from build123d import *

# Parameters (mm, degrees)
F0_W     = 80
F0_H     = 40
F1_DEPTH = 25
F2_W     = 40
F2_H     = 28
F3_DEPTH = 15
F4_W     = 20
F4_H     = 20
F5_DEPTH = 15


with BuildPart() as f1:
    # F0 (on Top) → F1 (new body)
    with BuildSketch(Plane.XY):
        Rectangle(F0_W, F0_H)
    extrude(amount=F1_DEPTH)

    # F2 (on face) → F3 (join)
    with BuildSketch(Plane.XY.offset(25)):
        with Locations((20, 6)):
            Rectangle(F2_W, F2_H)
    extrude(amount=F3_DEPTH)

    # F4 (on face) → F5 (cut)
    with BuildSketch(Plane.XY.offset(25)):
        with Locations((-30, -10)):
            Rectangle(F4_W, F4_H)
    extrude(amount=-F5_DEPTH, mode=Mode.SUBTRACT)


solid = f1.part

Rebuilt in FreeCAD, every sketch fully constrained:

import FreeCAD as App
import Part
import Sketcher

doc = App.newDocument("Part")
body = doc.addObject("PartDesign::Body", "Body")

# Sketch on XY plane
sketch1 = body.newObject("Sketcher::SketchObject", "Sketch")
sketch1.AttachmentSupport = (doc.getObject("XY_Plane"), [""])
sketch1.MapMode = "FlatFace"
sketch1.addGeometry(Part.LineSegment(App.Vector(-40, 20, 0), App.Vector(-40, -20, 0)), False)
sketch1.addGeometry(Part.LineSegment(App.Vector(-40, -20, 0), App.Vector(40, -20, 0)), False)
sketch1.addGeometry(Part.LineSegment(App.Vector(40, -20, 0), App.Vector(40, 20, 0)), False)
sketch1.addGeometry(Part.LineSegment(App.Vector(40, 20, 0), App.Vector(-40, 20, 0)), False)
sketch1.addConstraint(Sketcher.Constraint("Coincident", 0, 2, 1, 1))
sketch1.addConstraint(Sketcher.Constraint("Coincident", 1, 2, 2, 1))
sketch1.addConstraint(Sketcher.Constraint("Coincident", 2, 2, 3, 1))
sketch1.addConstraint(Sketcher.Constraint("Coincident", 3, 2, 0, 1))
sketch1.addConstraint(Sketcher.Constraint("Vertical", 0))
sketch1.addConstraint(Sketcher.Constraint("Horizontal", 1))
sketch1.addConstraint(Sketcher.Constraint("Vertical", 2))
sketch1.addConstraint(Sketcher.Constraint("Horizontal", 3))
sketch1.addConstraint(Sketcher.Constraint("Symmetric", 0, 2, 2, 2, -1, 1))
sketch1.addConstraint(Sketcher.Constraint("DistanceX", 1, 1, 1, 2, 80.0))
sketch1.addConstraint(Sketcher.Constraint("DistanceY", 0, 2, 0, 1, 40.0))
pad1 = body.newObject("PartDesign::Pad", "Pad")
pad1.Profile = sketch1
pad1.Length = 25

# Sketch on XY plane
sketch2 = body.newObject("Sketcher::SketchObject", "Sketch001")
sketch2.AttachmentSupport = (doc.getObject("XY_Plane"), [""])
sketch2.MapMode = "FlatFace"
sketch2.AttachmentOffset = App.Placement(App.Vector(0, 0, 25), App.Rotation())
sketch2.addGeometry(Part.LineSegment(App.Vector(0, 20, 0), App.Vector(0, -8, 0)), False)
sketch2.addGeometry(Part.LineSegment(App.Vector(0, -8, 0), App.Vector(40, -8, 0)), False)
sketch2.addGeometry(Part.LineSegment(App.Vector(40, -8, 0), App.Vector(40, 20, 0)), False)
sketch2.addGeometry(Part.LineSegment(App.Vector(40, 20, 0), App.Vector(0, 20, 0)), False)
sketch2.addConstraint(Sketcher.Constraint("Coincident", 0, 2, 1, 1))
sketch2.addConstraint(Sketcher.Constraint("Coincident", 1, 2, 2, 1))
sketch2.addConstraint(Sketcher.Constraint("Coincident", 2, 2, 3, 1))
sketch2.addConstraint(Sketcher.Constraint("Coincident", 3, 2, 0, 1))
sketch2.addConstraint(Sketcher.Constraint("Vertical", 0))
sketch2.addConstraint(Sketcher.Constraint("Horizontal", 1))
sketch2.addConstraint(Sketcher.Constraint("Vertical", 2))
sketch2.addConstraint(Sketcher.Constraint("Horizontal", 3))
sketch2.addConstraint(Sketcher.Constraint("PointOnObject", 0, 2, -2))
sketch2.addConstraint(Sketcher.Constraint("DistanceX", 1, 1, 1, 2, 40.0))
sketch2.addConstraint(Sketcher.Constraint("DistanceY", 0, 2, 0, 1, 28.0))
sketch2.addConstraint(Sketcher.Constraint("DistanceY", 0, 2, -1, 1, 8.0))
pad2 = body.newObject("PartDesign::Pad", "Pad001")
pad2.Profile = sketch2
pad2.Length = 15

# Sketch on XY plane
sketch3 = body.newObject("Sketcher::SketchObject", "Sketch002")
sketch3.AttachmentSupport = (doc.getObject("XY_Plane"), [""])
sketch3.MapMode = "FlatFace"
sketch3.AttachmentOffset = App.Placement(App.Vector(0, 0, 25), App.Rotation())
sketch3.addGeometry(Part.LineSegment(App.Vector(-40, 0, 0), App.Vector(-40, -20, 0)), False)
sketch3.addGeometry(Part.LineSegment(App.Vector(-40, -20, 0), App.Vector(-20, -20, 0)), False)
sketch3.addGeometry(Part.LineSegment(App.Vector(-20, -20, 0), App.Vector(-20, 0, 0)), False)
sketch3.addGeometry(Part.LineSegment(App.Vector(-20, 0, 0), App.Vector(-40, 0, 0)), False)
sketch3.addConstraint(Sketcher.Constraint("Coincident", 0, 2, 1, 1))
sketch3.addConstraint(Sketcher.Constraint("Coincident", 1, 2, 2, 1))
sketch3.addConstraint(Sketcher.Constraint("Coincident", 2, 2, 3, 1))
sketch3.addConstraint(Sketcher.Constraint("Coincident", 3, 2, 0, 1))
sketch3.addConstraint(Sketcher.Constraint("Vertical", 0))
sketch3.addConstraint(Sketcher.Constraint("Horizontal", 1))
sketch3.addConstraint(Sketcher.Constraint("Vertical", 2))
sketch3.addConstraint(Sketcher.Constraint("Horizontal", 3))
sketch3.addConstraint(Sketcher.Constraint("PointOnObject", 2, 2, -1))
sketch3.addConstraint(Sketcher.Constraint("Equal", 3, 0))
sketch3.addConstraint(Sketcher.Constraint("DistanceX", 1, 1, 1, 2, 20.0))
sketch3.addConstraint(Sketcher.Constraint("DistanceX", 0, 2, -1, 1, 40.0))
pocket1 = body.newObject("PartDesign::Pocket", "Pocket")
pocket1.Profile = sketch3
pocket1.Length = 15

doc.recompute()
